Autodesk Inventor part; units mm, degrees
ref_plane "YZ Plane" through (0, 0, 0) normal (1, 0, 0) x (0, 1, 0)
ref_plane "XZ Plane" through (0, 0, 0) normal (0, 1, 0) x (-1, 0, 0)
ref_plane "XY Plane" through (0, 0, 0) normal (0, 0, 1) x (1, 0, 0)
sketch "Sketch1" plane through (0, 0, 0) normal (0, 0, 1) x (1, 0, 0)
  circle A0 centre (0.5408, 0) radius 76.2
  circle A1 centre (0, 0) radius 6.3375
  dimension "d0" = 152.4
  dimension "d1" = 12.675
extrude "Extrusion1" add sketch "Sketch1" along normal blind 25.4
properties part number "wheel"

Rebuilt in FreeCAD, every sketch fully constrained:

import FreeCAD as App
import Part
import Sketcher
from FreeCAD import Vector
Q = App.Units.Quantity

doc = App.newDocument("Part")
body = doc.addObject("PartDesign::Body", "Body")

sketch1 = body.newObject("Sketcher::SketchObject", "Sketch")
sketch1.AttachmentSupport = (doc.getObject("XY_Plane"), [""])
sketch1.MapMode = "FlatFace"
sketch1.addGeometry([
    Part.Circle(Vector(1, 0, 0), Vector(0, 0, 1), 76),
    Part.Circle(Vector(0, 0, 0), Vector(0, 0, 1), 6),
], False)
sketch1.addConstraint([
    Sketcher.Constraint("Coincident", 1, 3, -1, 1),
    Sketcher.Constraint("PointOnObject", 0, 3, -1),
    Sketcher.Constraint("Diameter", 0, Q("6 in")),
    Sketcher.Constraint("Diameter", 1, Q("12.675 mm")),
    Sketcher.Constraint("DistanceX", -1, 1, 0, 3, Q("0.0213 in")),
])
pad1 = body.newObject("PartDesign::Pad", "Pad")
pad1.Profile = sketch1
pad1.Length = Q("1 in")

doc.recompute()
